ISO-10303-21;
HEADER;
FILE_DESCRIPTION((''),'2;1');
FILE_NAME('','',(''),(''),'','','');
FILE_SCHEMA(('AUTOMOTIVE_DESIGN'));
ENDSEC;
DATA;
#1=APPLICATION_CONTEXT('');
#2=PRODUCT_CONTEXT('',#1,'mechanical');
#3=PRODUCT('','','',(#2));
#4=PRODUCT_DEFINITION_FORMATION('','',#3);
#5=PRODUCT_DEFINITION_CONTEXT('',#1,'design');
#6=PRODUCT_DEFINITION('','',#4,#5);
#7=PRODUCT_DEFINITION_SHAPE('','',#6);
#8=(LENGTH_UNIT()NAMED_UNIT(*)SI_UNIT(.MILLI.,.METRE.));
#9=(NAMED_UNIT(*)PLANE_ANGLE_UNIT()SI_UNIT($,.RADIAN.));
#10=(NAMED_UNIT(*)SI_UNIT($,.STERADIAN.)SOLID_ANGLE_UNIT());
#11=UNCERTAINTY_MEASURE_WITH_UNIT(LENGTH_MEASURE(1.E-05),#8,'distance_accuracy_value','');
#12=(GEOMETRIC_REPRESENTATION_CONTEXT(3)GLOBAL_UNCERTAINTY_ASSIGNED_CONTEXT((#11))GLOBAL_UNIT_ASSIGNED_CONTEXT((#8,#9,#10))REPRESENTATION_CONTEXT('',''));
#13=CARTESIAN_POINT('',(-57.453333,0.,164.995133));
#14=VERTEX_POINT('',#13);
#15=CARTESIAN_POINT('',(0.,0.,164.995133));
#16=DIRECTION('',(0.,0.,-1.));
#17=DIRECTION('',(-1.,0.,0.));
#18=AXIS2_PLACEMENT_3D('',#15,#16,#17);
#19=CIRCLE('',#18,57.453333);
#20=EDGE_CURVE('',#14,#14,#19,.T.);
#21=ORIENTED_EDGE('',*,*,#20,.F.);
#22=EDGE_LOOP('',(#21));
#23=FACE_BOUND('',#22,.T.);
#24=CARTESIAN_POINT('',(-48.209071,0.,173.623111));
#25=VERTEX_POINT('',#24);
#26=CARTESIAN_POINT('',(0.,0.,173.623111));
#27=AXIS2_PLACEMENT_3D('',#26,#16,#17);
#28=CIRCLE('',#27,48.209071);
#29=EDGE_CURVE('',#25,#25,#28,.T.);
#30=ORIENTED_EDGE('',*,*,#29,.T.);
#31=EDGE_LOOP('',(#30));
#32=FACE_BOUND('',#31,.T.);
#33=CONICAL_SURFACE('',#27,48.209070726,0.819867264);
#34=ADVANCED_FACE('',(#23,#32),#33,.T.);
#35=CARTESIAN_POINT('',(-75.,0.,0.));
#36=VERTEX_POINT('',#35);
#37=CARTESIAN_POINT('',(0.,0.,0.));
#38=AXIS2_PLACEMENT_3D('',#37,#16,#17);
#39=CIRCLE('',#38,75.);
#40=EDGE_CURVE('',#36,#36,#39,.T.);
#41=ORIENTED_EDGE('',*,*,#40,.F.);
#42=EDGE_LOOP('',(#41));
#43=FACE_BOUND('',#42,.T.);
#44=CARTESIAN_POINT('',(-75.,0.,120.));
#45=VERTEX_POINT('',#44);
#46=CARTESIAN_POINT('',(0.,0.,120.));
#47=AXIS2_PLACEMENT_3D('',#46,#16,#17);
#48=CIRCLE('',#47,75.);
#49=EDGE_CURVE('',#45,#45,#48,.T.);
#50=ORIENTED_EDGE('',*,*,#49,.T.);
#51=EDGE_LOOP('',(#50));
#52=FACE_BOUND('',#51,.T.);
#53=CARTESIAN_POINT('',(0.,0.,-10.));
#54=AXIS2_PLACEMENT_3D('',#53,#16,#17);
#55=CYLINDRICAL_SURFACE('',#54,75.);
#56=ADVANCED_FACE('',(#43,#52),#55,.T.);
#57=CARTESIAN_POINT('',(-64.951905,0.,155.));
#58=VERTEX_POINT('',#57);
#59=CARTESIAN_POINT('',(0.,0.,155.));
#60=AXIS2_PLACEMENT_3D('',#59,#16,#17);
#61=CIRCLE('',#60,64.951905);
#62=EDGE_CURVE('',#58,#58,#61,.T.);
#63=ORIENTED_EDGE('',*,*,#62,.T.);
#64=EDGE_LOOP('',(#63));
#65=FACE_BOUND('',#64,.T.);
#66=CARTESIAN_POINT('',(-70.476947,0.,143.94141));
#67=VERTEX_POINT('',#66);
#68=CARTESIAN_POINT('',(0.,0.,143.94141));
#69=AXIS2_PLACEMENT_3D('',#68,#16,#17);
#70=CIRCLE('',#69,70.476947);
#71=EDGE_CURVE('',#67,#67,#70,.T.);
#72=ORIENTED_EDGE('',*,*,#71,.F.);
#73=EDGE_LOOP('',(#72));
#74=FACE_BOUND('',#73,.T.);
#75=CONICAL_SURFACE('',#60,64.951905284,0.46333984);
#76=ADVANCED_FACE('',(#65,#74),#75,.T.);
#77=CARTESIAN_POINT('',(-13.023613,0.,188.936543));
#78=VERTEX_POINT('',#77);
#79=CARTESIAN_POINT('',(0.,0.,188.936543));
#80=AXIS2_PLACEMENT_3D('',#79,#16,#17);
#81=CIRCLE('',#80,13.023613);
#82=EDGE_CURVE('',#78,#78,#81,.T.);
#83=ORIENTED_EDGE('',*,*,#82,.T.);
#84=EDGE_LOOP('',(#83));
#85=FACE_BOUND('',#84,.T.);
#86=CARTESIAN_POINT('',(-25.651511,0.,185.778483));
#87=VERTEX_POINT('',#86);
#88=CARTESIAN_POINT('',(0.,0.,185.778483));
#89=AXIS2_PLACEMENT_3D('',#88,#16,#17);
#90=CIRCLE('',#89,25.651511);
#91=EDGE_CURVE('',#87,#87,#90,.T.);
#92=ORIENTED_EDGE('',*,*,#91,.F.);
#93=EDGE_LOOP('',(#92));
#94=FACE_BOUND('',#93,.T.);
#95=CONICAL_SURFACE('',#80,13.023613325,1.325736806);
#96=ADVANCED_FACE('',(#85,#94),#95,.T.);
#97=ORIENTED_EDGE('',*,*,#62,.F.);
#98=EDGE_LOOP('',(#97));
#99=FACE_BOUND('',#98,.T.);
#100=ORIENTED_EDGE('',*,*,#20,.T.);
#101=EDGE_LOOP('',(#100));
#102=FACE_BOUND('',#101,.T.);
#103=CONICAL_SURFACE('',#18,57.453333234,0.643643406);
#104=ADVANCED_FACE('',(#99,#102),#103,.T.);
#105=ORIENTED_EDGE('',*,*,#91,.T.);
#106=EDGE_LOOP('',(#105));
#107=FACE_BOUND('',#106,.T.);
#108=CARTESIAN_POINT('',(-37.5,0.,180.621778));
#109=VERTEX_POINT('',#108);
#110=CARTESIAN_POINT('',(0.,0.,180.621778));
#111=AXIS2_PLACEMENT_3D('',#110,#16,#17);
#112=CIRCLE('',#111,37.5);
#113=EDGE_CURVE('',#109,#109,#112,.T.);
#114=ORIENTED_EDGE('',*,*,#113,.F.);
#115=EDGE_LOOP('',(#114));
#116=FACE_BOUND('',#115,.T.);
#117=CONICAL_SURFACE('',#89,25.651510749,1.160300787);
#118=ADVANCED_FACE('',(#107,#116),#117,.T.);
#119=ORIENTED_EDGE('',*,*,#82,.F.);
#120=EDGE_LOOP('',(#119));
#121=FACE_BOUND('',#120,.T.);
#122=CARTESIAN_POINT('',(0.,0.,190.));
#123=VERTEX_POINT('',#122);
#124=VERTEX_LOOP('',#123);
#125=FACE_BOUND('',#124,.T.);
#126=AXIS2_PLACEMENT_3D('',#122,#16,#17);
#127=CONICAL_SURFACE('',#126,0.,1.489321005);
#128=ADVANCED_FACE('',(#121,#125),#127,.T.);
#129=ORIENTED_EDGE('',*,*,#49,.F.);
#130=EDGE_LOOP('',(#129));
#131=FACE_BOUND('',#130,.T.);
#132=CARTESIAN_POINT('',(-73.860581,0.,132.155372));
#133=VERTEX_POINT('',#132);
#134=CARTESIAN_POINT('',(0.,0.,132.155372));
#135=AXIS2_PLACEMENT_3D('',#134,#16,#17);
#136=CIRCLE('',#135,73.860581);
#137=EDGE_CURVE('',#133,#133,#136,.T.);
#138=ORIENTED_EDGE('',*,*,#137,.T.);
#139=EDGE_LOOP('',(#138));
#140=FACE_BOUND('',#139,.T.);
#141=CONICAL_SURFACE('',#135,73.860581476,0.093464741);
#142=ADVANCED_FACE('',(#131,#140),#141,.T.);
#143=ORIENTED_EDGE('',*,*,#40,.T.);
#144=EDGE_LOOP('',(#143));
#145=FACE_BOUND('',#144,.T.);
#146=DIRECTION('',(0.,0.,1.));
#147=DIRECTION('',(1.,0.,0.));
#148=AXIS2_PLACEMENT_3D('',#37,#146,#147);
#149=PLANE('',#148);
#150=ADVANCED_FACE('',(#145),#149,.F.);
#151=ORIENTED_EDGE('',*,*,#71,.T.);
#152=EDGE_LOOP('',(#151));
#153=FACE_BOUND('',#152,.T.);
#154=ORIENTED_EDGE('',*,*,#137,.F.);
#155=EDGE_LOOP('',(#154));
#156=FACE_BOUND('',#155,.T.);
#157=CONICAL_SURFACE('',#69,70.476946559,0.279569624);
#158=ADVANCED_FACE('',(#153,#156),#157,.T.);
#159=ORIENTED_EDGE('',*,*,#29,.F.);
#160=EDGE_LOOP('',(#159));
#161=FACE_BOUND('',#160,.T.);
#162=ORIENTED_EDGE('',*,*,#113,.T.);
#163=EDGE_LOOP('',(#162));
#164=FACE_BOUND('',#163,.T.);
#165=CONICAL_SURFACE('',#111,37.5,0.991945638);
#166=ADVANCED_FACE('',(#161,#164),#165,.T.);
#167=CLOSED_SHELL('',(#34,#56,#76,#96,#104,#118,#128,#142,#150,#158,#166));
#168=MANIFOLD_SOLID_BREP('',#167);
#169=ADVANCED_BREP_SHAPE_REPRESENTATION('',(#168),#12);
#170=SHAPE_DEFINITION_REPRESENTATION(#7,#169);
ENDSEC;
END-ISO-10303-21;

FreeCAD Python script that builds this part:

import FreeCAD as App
import Part
import Sketcher
from FreeCAD import Vector
Q = App.Units.Quantity

doc = App.newDocument("Part")
body = doc.addObject("PartDesign::Body", "Body")

sketch1 = body.newObject("Sketcher::SketchObject", "Sketch")
sketch1.AttachmentSupport = (doc.getObject("XZ_Plane"), [""])
sketch1.MapMode = "FlatFace"
sketch1.addGeometry([
    Part.LineSegment(Vector(75, 0, 0), Vector(0, 0, 0)),
    Part.LineSegment(Vector(0, 0, 0), Vector(0, 190, 0)),
    Part.LineSegment(Vector(0, 190, 0), Vector(13, 189, 0)),
    Part.LineSegment(Vector(13, 189, 0), Vector(26, 186, 0)),
    Part.LineSegment(Vector(26, 186, 0), Vector(38, 181, 0)),
    Part.LineSegment(Vector(38, 181, 0), Vector(48, 174, 0)),
    Part.LineSegment(Vector(48, 174, 0), Vector(57, 165, 0)),
    Part.LineSegment(Vector(57, 165, 0), Vector(65, 155, 0)),
    Part.LineSegment(Vector(65, 155, 0), Vector(70, 144, 0)),
    Part.LineSegment(Vector(70, 144, 0), Vector(74, 132, 0)),
    Part.LineSegment(Vector(74, 132, 0), Vector(75, 120, 0)),
    Part.LineSegment(Vector(75, 120, 0), Vector(75, 0, 0)),
], False)
sketch1.addConstraint([
    Sketcher.Constraint("Coincident", 0, 2, 1, 1),
    Sketcher.Constraint("Coincident", 1, 2, 2, 1),
    Sketcher.Constraint("Coincident", 2, 2, 3, 1),
    Sketcher.Constraint("Coincident", 3, 2, 4, 1),
    Sketcher.Constraint("Coincident", 4, 2, 5, 1),
    Sketcher.Constraint("Coincident", 5, 2, 6, 1),
    Sketcher.Constraint("Coincident", 6, 2, 7, 1),
    Sketcher.Constraint("Coincident", 7, 2, 8, 1),
    Sketcher.Constraint("Coincident", 8, 2, 9, 1),
    Sketcher.Constraint("Coincident", 9, 2, 10, 1),
    Sketcher.Constraint("Coincident", 10, 2, 11, 1),
    Sketcher.Constraint("Coincident", 11, 2, 0, 1),
    Sketcher.Constraint("Horizontal", 0),
    Sketcher.Constraint("Vertical", 1),
    Sketcher.Constraint("Vertical", 11),
    Sketcher.Constraint("Coincident", 0, 2, -1, 1),
    Sketcher.Constraint("DistanceX", 0, 2, 0, 1, Q("75 mm")),
    Sketcher.Constraint("DistanceY", 1, 1, 1, 2, Q("190 mm")),
    Sketcher.Constraint("DistanceY", 11, 2, 11, 1, Q("120 mm")),
    Sketcher.Constraint("DistanceY", -1, 1, 7, 2, Q("155 mm")),
    Sketcher.Constraint("DistanceX", -1, 1, 4, 2, Q("37.5 mm")),
    Sketcher.Constraint("Distance", 3, Q("13.016802 mm")),
    Sketcher.Constraint("DistanceY", 8, 2, 5, 2, Q("29.681701 mm")),
    Sketcher.Constraint("Distance", 2, Q("13.06696 mm")),
    Sketcher.Constraint("Distance", 4, Q("12.922009 mm")),
    Sketcher.Constraint("Distance", 7, Q("12.495249 mm")),
    Sketcher.Constraint("Distance", 10, Q("12.208659 mm")),
    Sketcher.Constraint("DistanceX", -1, 1, 3, 2, Q("25.651511 mm")),
    Sketcher.Constraint("DistanceY", -1, 1, 4, 2, Q("180.621778 mm")),
    Sketcher.Constraint("DistanceX", -1, 1, 5, 2, Q("48.209071 mm")),
    Sketcher.Constraint("DistanceY", -1, 1, 5, 2, Q("173.623111 mm")),
    Sketcher.Constraint("DistanceX", -1, 1, 9, 2, Q("73.860581 mm")),
    Sketcher.Constraint("DistanceY", 6, 2, 5, 2, Q("8.627978 mm")),
    Sketcher.Constraint("DistanceX", 2, 2, 6, 2, Q("44.42972 mm")),
    Sketcher.Constraint("DistanceX", 7, 2, 8, 2, Q("5.525041 mm")),
])
revolution = body.newObject("PartDesign::Revolution", "Revolution")
revolution.Profile = sketch1
revolution.ReferenceAxis = (sketch1, ["V_Axis"])
revolution.Angle = 360

doc.recompute()
